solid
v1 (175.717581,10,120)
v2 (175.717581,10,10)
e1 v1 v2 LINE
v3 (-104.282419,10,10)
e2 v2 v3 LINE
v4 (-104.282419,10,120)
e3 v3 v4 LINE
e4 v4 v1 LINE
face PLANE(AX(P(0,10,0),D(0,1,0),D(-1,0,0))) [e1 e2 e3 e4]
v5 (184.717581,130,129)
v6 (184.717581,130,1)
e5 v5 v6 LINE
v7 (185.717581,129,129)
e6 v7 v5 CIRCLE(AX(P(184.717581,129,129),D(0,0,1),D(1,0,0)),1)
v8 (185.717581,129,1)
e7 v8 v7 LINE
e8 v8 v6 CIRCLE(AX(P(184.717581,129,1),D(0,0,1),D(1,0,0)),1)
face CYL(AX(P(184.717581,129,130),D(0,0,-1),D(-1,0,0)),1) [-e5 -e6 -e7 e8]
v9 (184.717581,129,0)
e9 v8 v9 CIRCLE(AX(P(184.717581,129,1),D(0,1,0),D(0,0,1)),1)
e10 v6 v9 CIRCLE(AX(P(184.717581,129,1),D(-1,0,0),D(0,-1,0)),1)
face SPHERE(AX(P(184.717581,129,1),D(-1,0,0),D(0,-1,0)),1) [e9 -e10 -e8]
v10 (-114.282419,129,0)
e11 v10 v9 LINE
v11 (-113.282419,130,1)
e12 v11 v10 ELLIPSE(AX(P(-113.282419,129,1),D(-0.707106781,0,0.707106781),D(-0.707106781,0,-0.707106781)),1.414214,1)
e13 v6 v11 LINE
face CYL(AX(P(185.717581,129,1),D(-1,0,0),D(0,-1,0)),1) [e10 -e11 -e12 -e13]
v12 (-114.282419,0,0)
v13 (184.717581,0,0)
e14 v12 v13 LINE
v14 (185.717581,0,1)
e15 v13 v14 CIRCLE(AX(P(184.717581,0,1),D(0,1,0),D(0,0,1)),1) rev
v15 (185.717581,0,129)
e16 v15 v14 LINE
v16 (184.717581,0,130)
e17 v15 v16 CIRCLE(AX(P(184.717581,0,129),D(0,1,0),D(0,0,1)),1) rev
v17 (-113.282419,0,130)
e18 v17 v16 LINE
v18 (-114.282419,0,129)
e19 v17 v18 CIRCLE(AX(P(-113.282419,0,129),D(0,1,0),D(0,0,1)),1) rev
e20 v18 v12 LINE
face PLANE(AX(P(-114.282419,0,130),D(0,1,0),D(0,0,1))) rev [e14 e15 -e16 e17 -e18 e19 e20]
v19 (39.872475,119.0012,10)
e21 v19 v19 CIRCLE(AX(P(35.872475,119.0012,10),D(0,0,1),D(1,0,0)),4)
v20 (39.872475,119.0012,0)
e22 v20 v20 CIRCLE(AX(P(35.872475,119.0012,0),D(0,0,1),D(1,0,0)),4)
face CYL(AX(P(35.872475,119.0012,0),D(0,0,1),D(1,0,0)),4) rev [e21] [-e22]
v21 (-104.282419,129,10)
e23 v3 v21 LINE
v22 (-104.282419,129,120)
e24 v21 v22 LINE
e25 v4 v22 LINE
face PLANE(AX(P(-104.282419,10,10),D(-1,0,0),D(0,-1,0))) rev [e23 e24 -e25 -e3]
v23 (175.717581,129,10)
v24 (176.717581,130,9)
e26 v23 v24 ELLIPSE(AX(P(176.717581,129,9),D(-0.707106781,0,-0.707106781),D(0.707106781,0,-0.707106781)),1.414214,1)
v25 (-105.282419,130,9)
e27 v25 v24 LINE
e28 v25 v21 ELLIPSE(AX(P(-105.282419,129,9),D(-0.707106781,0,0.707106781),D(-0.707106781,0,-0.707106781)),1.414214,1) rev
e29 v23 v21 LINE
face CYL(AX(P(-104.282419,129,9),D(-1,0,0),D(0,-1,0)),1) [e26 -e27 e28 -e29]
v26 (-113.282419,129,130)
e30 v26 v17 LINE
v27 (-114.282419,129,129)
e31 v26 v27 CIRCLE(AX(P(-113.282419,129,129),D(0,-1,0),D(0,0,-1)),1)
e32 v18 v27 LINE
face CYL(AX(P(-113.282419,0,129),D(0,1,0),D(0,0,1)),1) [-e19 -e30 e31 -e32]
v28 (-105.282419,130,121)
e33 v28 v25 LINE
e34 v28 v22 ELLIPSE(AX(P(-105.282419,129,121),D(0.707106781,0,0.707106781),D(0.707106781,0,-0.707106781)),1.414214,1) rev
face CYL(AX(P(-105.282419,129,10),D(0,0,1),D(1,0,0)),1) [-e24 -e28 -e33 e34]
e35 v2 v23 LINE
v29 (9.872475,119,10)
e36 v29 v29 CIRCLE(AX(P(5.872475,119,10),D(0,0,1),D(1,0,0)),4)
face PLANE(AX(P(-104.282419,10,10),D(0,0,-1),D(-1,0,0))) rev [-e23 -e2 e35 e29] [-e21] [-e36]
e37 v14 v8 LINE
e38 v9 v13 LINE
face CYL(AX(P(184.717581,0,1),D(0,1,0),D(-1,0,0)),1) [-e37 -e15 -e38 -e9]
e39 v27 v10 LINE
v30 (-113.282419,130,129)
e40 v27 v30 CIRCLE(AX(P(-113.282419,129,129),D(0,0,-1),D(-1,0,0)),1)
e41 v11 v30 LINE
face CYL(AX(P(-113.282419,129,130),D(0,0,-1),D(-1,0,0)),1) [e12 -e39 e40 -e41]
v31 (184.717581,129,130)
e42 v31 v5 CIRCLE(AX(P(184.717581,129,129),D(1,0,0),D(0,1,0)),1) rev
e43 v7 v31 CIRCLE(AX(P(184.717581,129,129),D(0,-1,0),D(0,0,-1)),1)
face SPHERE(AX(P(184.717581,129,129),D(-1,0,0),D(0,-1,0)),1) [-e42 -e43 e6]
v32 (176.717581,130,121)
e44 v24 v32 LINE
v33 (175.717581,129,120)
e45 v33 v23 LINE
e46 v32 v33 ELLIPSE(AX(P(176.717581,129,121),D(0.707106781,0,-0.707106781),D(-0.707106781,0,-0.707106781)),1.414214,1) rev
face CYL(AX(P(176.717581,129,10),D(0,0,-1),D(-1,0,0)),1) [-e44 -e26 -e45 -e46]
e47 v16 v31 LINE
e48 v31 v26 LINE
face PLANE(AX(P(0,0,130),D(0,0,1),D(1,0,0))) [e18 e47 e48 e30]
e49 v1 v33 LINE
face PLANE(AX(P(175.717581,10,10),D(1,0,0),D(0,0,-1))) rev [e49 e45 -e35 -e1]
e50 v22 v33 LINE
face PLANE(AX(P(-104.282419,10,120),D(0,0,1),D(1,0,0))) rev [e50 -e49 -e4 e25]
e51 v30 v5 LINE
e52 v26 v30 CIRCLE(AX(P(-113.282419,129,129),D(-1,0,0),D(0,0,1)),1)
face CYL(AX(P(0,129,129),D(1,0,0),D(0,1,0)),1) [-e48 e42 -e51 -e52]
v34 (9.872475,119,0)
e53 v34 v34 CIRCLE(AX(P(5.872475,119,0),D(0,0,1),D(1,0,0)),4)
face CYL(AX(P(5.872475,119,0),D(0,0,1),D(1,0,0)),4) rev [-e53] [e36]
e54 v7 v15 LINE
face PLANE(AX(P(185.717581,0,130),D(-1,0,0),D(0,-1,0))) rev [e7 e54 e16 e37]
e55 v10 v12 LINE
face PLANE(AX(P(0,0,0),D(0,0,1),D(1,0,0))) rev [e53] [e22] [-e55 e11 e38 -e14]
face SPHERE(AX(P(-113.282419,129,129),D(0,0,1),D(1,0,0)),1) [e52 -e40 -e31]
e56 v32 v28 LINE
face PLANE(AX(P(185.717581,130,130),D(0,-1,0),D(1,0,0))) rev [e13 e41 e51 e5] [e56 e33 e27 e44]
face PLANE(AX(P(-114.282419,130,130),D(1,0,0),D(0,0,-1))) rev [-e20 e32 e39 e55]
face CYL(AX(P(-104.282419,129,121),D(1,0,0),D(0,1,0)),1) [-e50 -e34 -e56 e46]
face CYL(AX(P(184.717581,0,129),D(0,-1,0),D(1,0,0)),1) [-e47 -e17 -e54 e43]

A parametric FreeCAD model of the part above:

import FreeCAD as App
import Part
import Sketcher

V = App.Vector
Q = App.Units.Quantity


def edges_at(feature, points):
    """Names of the edges that pass closest to the given points."""
    edges = feature.Shape.Edges
    near = lambda p: min(range(len(edges)), key=lambda i: edges[i].distToShape(Part.Vertex(*p))[0])
    return sorted({f"Edge{near(p) + 1}" for p in points})

doc = App.newDocument("Part")
body = doc.addObject("PartDesign::Body", "Body")

# Sketch on XY plane
sketch1 = body.newObject("Sketcher::SketchObject", "Sketch")
sketch1.AttachmentSupport = (doc.getObject("XY_Plane"), [""])
sketch1.MapMode = "FlatFace"
sketch1.addGeometry(Part.LineSegment(V(-114, 130, 0), V(-114, 0, 0)), False)
sketch1.addGeometry(Part.LineSegment(V(-114, 0, 0), V(186, 0, 0)), False)
sketch1.addGeometry(Part.LineSegment(V(186, 0, 0), V(186, 130, 0)), False)
sketch1.addGeometry(Part.LineSegment(V(186, 130, 0), V(-114, 130, 0)), False)
sketch1.addConstraint(Sketcher.Constraint("Coincident", 0, 2, 1, 1))
sketch1.addConstraint(Sketcher.Constraint("Coincident", 1, 2, 2, 1))
sketch1.addConstraint(Sketcher.Constraint("Coincident", 2, 2, 3, 1))
sketch1.addConstraint(Sketcher.Constraint("Coincident", 3, 2, 0, 1))
sketch1.addConstraint(Sketcher.Constraint("Vertical", 0))
sketch1.addConstraint(Sketcher.Constraint("Horizontal", 1))
sketch1.addConstraint(Sketcher.Constraint("Vertical", 2))
sketch1.addConstraint(Sketcher.Constraint("Horizontal", 3))
sketch1.addConstraint(Sketcher.Constraint("PointOnObject", 0, 2, -1))
sketch1.addConstraint(Sketcher.Constraint("DistanceX", 1, 1, 1, 2, Q("300 mm")))
sketch1.addConstraint(Sketcher.Constraint("DistanceY", 0, 2, 0, 1, Q("130 mm")))
sketch1.addConstraint(Sketcher.Constraint("DistanceX", 0, 2, -1, 1, Q("114.282419 mm")))
pad1 = body.newObject("PartDesign::Pad", "Pad")
pad1.Profile = sketch1
pad1.Length = 130

# Sketch on XZ plane
sketch2 = body.newObject("Sketcher::SketchObject", "Sketch001")
sketch2.AttachmentSupport = (doc.getObject("XZ_Plane"), [""])
sketch2.MapMode = "FlatFace"
sketch2.AttachmentOffset = App.Placement(V(0, 0, -130), App.Rotation())
sketch2.addGeometry(Part.LineSegment(V(-104, 10, 0), V(-104, 120, 0)), False)
sketch2.addGeometry(Part.LineSegment(V(-104, 120, 0), V(176, 120, 0)), False)
sketch2.addGeometry(Part.LineSegment(V(176, 120, 0), V(176, 10, 0)), False)
sketch2.addGeometry(Part.LineSegment(V(176, 10, 0), V(-104, 10, 0)), False)
sketch2.addConstraint(Sketcher.Constraint("Coincident", 0, 2, 1, 1))
sketch2.addConstraint(Sketcher.Constraint("Coincident", 1, 2, 2, 1))
sketch2.addConstraint(Sketcher.Constraint("Coincident", 2, 2, 3, 1))
sketch2.addConstraint(Sketcher.Constraint("Coincident", 3, 2, 0, 1))
sketch2.addConstraint(Sketcher.Constraint("Vertical", 0))
sketch2.addConstraint(Sketcher.Constraint("Horizontal", 1))
sketch2.addConstraint(Sketcher.Constraint("Vertical", 2))
sketch2.addConstraint(Sketcher.Constraint("Horizontal", 3))
sketch2.addConstraint(Sketcher.Constraint("DistanceX", 1, 1, 1, 2, Q("280 mm")))
sketch2.addConstraint(Sketcher.Constraint("DistanceY", 0, 1, 0, 2, Q("110 mm")))
sketch2.addConstraint(Sketcher.Constraint("DistanceY", -1, 1, 0, 2, Q("120 mm")))
sketch2.addConstraint(Sketcher.Constraint("DistanceX", 0, 2, -1, 1, Q("104.282419 mm")))
pocket1 = body.newObject("PartDesign::Pocket", "Pocket")
pocket1.Profile = sketch2
pocket1.Length = 120
pocket1.Reversed = True
doc.recompute()

fillet = body.newObject("PartDesign::Fillet", "Fillet")
fillet.Base = (pocket1, edges_at(pocket1, [(-104.282, 130, 65), (35.718, 130, 10)]))
fillet.Radius = 1
doc.recompute()

fillet2 = body.newObject("PartDesign::Fillet", "Fillet001")
fillet2.Base = (fillet, edges_at(fillet, [(35.218, 130, 120)]))
fillet2.Radius = 1
doc.recompute()

fillet3 = body.newObject("PartDesign::Fillet", "Fillet002")
fillet3.Base = (fillet2, edges_at(fillet2, [(175.718, 130, 65)]))
fillet3.Radius = 1
doc.recompute()

fillet4 = body.newObject("PartDesign::Fillet", "Fillet003")
fillet4.Base = (fillet3, edges_at(fillet3, [(35.718, 130, 0), (-114.282, 130, 65)]))
fillet4.Radius = 1
doc.recompute()

fillet5 = body.newObject("PartDesign::Fillet", "Fillet004")
fillet5.Base = (fillet4, edges_at(fillet4, [(36.218, 130, 130), (-114.282, 64.5, 130), (-113.99, 129.707, 130)]))
fillet5.Radius = 1
doc.recompute()

fillet6 = body.newObject("PartDesign::Fillet", "Fillet005")
fillet6.Base = (fillet5, edges_at(fillet5, [
    (185.718, 64.5, 130),
    (185.718, 64.5, 0),
    (185.718, 129.707, 0.293),
    (185.718, 130, 65),
    (185.718, 129.707, 129.707),
]))
fillet6.Radius = 1

# Sketch on XY plane
sketch3 = body.newObject("Sketcher::SketchObject", "Sketch002")
sketch3.AttachmentSupport = (doc.getObject("XY_Plane"), [""])
sketch3.MapMode = "FlatFace"
sketch3.AttachmentOffset = App.Placement(V(0, 0, 10), App.Rotation())
sketch3.addGeometry(Part.Circle(V(5.9, 119, 0), V(0, 0, 1), 4), False)
sketch3.addGeometry(Part.Circle(V(35.9, 119, 0), V(0, 0, 1), 4), False)
sketch3.addConstraint(Sketcher.Constraint("Equal", 0, 1))
sketch3.addConstraint(Sketcher.Constraint("Diameter", 0, Q("8 mm")))
sketch3.addConstraint(Sketcher.Constraint("DistanceY", -1, 1, 0, 3, Q("119 mm")))
sketch3.addConstraint(Sketcher.Constraint("DistanceX", 0, 3, 1, 3, Q("30 mm")))
sketch3.addConstraint(Sketcher.Constraint("DistanceY", -1, 1, 1, 3, Q("119.0012 mm")))
sketch3.addConstraint(Sketcher.Constraint("DistanceX", -1, 1, 0, 3, Q("5.872475 mm")))
pocket2 = body.newObject("PartDesign::Pocket", "Pocket001")
pocket2.Profile = sketch3
pocket2.Type = "ThroughAll"

doc.recompute()
